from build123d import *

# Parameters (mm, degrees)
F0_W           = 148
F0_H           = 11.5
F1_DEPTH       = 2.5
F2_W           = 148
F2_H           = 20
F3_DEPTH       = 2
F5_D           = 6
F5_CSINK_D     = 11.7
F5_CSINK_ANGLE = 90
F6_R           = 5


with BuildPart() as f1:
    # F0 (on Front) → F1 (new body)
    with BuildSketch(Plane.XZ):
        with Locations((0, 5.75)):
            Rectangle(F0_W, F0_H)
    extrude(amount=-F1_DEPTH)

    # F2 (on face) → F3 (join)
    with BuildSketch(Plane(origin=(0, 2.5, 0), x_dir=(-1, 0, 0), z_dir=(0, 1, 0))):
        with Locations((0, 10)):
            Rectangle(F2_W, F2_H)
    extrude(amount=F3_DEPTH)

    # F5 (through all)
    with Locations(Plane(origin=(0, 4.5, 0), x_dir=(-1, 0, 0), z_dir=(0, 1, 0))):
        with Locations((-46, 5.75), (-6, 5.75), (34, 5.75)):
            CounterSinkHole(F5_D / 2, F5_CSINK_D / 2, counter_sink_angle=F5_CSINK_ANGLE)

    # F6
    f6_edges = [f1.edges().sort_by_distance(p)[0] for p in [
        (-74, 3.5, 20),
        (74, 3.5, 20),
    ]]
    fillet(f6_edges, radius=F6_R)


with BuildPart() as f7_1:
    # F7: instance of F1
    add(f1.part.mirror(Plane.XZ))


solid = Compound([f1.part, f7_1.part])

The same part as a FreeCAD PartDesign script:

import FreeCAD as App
import Part
import Sketcher
from FreeCAD import Vector


def edges_at(feature, points):
    """Names of the edges that pass closest to the given points."""
    edges = feature.Shape.Edges
    near = lambda p: min(range(len(edges)), key=lambda i: edges[i].distToShape(Part.Vertex(*p))[0])
    return sorted({f"Edge{near(p) + 1}" for p in points})

doc = App.newDocument("Part")
body = doc.addObject("PartDesign::Body", "Body")

# Sketch on XZ plane
sketch1 = body.newObject("Sketcher::SketchObject", "Sketch")
sketch1.AttachmentSupport = (doc.getObject("XZ_Plane"), [""])
sketch1.MapMode = "FlatFace"
sketch1.addGeometry([
    Part.LineSegment(Vector(-74, 11.5, 0), Vector(-74, 0, 0)),
    Part.LineSegment(Vector(-74, 0, 0), Vector(74, 0, 0)),
    Part.LineSegment(Vector(74, 0, 0), Vector(74, 11.5, 0)),
    Part.LineSegment(Vector(74, 11.5, 0), Vector(-74, 11.5, 0)),
], False)
sketch1.addConstraint([
    Sketcher.Constraint("Coincident", 0, 2, 1, 1),
    Sketcher.Constraint("Coincident", 1, 2, 2, 1),
    Sketcher.Constraint("Coincident", 2, 2, 3, 1),
    Sketcher.Constraint("Coincident", 3, 2, 0, 1),
    Sketcher.Constraint("Vertical", 0),
    Sketcher.Constraint("Horizontal", 1),
    Sketcher.Constraint("Vertical", 2),
    Sketcher.Constraint("Horizontal", 3),
    Sketcher.Constraint("Symmetric", 0, 2, 1, 2, -1, 1),
    Sketcher.Constraint("DistanceX", 1, 1, 1, 2, 148.0),
    Sketcher.Constraint("DistanceY", 0, 2, 0, 1, 11.5),
])
pad1 = body.newObject("PartDesign::Pad", "Pad")
pad1.Profile = sketch1
pad1.Length = 2.5
pad1.Reversed = True

# Sketch on XZ plane
sketch2 = body.newObject("Sketcher::SketchObject", "Sketch001")
sketch2.AttachmentSupport = (doc.getObject("XZ_Plane"), [""])
sketch2.MapMode = "FlatFace"
sketch2.AttachmentOffset = App.Placement(Vector(0, 0, -2.5), App.Rotation())
sketch2.addGeometry([
    Part.LineSegment(Vector(74, 20, 0), Vector(74, 0, 0)),
    Part.LineSegment(Vector(74, 0, 0), Vector(-74, 0, 0)),
    Part.LineSegment(Vector(-74, 0, 0), Vector(-74, 20, 0)),
    Part.LineSegment(Vector(-74, 20, 0), Vector(74, 20, 0)),
], False)
sketch2.addConstraint([
    Sketcher.Constraint("Coincident", 0, 2, 1, 1),
    Sketcher.Constraint("Coincident", 1, 2, 2, 1),
    Sketcher.Constraint("Coincident", 2, 2, 3, 1),
    Sketcher.Constraint("Coincident", 3, 2, 0, 1),
    Sketcher.Constraint("Vertical", 0),
    Sketcher.Constraint("Horizontal", 1),
    Sketcher.Constraint("Vertical", 2),
    Sketcher.Constraint("Horizontal", 3),
    Sketcher.Constraint("Symmetric", 0, 2, 1, 2, -1, 1),
    Sketcher.Constraint("DistanceX", 1, 2, 1, 1, 148.0),
    Sketcher.Constraint("DistanceY", 0, 2, 0, 1, 20.0),
])
pad2 = body.newObject("PartDesign::Pad", "Pad001")
pad2.Profile = sketch2
pad2.Length = 2
pad2.Reversed = True

# Sketch on XZ plane
sketch3 = body.newObject("Sketcher::SketchObject", "Sketch002")
sketch3.AttachmentSupport = (doc.getObject("XZ_Plane"), [""])
sketch3.MapMode = "FlatFace"
sketch3.AttachmentOffset = App.Placement(Vector(0, 0, -4.5), App.Rotation())
sketch3.addGeometry([
    Part.Circle(Vector(46, 5.75, 0), Vector(0, 0, 1), 3),
    Part.Circle(Vector(6, 5.75, 0), Vector(0, 0, 1), 3),
    Part.Circle(Vector(-34, 5.75, 0), Vector(0, 0, 1), 3),
], False)
sketch3.addConstraint([
    Sketcher.Constraint("Equal", 0, 1),
    Sketcher.Constraint("Equal", 1, 2),
    Sketcher.Constraint("Horizontal", 0, 3, 1, 3),
    Sketcher.Constraint("Horizontal", 1, 3, 2, 3),
    Sketcher.Constraint("Diameter", 0, 6.0),
    Sketcher.Constraint("DistanceX", -1, 1, 0, 3, 46.0),
    Sketcher.Constraint("DistanceX", -1, 1, 1, 3, 6.0),
    Sketcher.Constraint("DistanceX", 2, 3, -1, 1, 34.0),
    Sketcher.Constraint("DistanceY", -1, 1, 0, 3, 5.75),
])
doc.recompute()
hole = body.newObject("PartDesign::Hole", "Hole")
hole.Profile = sketch3
hole.ThreadType = "None"
hole.Diameter = 6
hole.DepthType = "ThroughAll"
hole.HoleCutType = "Countersink"
hole.HoleCutDiameter = 11.7
hole.HoleCutCountersinkAngle = 90
hole.Reversed = True
doc.recompute()

fillet = body.newObject("PartDesign::Fillet", "Fillet")
fillet.Base = (hole, edges_at(hole, [(-74, 3.5, 20), (74, 3.5, 20)]))
fillet.Radius = 5
body2 = doc.addObject("PartDesign::Body", "Body001")
doc.recompute()

mirroring = doc.addObject("Part::Mirroring", "Mirroring")
mirroring.Source = body
mirroring.Base = Vector(0, 0, 0)
mirroring.Normal = Vector(0, -1, 0)
body2.BaseFeature = mirroring
doc.recompute()
mirroring.Visibility = False

doc.recompute()
